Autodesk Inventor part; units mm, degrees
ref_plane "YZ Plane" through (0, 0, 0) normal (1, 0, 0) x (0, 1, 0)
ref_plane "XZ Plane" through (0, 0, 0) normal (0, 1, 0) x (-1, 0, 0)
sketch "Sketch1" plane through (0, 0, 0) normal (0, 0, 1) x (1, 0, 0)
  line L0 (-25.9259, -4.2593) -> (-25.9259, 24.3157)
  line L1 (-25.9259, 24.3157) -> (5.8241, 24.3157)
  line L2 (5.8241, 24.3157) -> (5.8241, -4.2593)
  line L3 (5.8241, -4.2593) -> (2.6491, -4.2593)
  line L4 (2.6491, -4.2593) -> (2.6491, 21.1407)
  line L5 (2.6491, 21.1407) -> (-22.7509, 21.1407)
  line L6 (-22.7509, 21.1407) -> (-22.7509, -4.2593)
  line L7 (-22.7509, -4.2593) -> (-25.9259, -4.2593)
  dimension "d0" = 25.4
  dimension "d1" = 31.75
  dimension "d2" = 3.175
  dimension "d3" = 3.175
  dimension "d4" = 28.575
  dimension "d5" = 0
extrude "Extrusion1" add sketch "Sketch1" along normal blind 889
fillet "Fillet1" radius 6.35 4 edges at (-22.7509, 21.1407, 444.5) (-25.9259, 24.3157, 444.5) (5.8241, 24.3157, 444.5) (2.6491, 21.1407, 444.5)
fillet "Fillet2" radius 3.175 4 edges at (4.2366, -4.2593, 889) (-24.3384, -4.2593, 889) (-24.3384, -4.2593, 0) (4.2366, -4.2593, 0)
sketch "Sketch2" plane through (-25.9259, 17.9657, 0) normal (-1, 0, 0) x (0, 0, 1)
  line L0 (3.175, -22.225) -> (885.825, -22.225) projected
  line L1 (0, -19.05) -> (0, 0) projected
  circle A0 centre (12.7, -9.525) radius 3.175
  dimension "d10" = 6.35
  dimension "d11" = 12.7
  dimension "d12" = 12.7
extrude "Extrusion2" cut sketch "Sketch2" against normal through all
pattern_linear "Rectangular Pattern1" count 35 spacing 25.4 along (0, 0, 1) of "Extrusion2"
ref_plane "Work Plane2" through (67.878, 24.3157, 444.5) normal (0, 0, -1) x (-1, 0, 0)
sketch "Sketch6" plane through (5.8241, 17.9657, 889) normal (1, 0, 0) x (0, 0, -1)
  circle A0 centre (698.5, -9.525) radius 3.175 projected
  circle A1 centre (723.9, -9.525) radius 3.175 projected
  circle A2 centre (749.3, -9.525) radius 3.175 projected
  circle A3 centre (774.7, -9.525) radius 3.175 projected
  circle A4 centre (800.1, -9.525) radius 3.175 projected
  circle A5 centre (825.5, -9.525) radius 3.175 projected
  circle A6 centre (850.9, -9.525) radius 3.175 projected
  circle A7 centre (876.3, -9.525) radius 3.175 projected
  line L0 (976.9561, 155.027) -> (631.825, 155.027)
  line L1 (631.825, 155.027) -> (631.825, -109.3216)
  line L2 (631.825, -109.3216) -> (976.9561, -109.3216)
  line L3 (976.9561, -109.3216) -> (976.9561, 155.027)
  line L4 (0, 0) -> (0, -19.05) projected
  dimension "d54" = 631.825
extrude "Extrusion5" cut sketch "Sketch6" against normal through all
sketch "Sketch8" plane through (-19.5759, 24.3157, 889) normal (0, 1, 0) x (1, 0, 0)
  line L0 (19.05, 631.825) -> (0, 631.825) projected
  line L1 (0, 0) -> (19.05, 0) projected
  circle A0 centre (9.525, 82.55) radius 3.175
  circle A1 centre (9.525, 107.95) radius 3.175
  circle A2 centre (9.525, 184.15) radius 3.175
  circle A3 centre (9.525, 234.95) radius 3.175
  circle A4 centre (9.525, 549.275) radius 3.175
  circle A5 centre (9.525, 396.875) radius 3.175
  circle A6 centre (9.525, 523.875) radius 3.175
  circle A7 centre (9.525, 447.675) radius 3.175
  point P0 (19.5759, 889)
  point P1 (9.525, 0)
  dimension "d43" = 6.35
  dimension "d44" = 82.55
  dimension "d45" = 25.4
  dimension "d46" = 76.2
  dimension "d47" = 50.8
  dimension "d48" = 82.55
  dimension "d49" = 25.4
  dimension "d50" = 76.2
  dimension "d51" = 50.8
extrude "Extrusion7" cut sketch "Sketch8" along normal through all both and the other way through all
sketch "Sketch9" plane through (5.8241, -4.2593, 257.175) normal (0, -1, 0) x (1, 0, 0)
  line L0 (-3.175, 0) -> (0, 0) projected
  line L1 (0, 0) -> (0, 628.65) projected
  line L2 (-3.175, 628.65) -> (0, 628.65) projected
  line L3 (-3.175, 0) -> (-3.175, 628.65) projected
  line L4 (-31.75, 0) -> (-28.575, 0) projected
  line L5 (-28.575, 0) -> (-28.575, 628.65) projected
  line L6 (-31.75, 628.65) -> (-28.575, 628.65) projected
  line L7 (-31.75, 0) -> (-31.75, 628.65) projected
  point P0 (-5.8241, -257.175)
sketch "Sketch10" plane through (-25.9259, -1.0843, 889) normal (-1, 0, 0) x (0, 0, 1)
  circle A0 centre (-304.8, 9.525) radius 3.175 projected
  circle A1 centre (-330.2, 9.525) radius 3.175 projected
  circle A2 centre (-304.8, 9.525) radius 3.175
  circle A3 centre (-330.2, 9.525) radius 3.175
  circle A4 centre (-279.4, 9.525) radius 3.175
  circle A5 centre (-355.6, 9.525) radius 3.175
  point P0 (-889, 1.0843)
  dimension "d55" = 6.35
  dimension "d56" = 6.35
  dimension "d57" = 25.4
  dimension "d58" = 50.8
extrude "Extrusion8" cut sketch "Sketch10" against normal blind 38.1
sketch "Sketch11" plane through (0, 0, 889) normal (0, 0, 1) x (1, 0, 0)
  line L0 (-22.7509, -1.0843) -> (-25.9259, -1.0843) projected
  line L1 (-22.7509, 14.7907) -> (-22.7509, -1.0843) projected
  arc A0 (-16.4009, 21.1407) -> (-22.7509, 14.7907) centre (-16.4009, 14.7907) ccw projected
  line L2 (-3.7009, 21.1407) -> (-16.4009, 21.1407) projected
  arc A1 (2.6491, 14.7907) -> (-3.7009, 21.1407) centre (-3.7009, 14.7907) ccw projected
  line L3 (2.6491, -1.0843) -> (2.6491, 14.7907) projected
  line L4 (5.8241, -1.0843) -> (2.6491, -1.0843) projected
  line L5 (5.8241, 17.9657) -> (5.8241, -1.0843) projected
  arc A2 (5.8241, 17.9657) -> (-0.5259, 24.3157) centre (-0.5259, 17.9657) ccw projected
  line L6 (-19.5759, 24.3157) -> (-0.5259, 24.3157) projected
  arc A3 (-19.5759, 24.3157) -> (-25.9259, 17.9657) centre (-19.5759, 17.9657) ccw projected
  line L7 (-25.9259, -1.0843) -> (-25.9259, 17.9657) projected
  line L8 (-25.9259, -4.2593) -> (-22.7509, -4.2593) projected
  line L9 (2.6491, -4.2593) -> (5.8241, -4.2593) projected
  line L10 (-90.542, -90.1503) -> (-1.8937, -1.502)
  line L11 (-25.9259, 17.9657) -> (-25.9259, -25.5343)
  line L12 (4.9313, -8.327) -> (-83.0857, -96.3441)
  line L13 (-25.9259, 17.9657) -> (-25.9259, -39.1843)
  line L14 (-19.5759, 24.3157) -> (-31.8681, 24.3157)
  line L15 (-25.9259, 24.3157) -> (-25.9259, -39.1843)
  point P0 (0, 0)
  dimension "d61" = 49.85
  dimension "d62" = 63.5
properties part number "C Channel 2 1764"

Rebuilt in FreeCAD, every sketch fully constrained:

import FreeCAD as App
import Part
import Sketcher

V = App.Vector
Q = App.Units.Quantity


def edges_at(feature, points):
    """Names of the edges that pass closest to the given points."""
    edges = feature.Shape.Edges
    near = lambda p: min(range(len(edges)), key=lambda i: edges[i].distToShape(Part.Vertex(*p))[0])
    return sorted({f"Edge{near(p) + 1}" for p in points})


def add_polygon(sketch, points):
    """Adds a closed chain of lines whose ends are joined by coincident constraints."""
    first, n = sketch.GeometryCount, len(points)
    for a, b in zip(points, points[1:] + points[:1]):
        sketch.addGeometry(Part.LineSegment(App.Vector(*a, 0), App.Vector(*b, 0)), False)
    for i in range(n):
        sketch.addConstraint(Sketcher.Constraint("Coincident", first + i, 2, first + (i + 1) % n, 1))

doc = App.newDocument("Part")
body = doc.addObject("PartDesign::Body", "Body")

sketch1 = doc.addObject("Sketcher::SketchObject", "Sketch")
body.addObject(sketch1)
sketch1.AttachmentSupport = (doc.XY_Plane, [""])
sketch1.MapMode = "FlatFace"
add_polygon(sketch1, [(-25.9259, 24.3157), (-25.9259, -4.2593), (-22.7509, -4.2593), (-22.7509, 21.1407), (2.6491, 21.1407), (2.6491, -4.2593), (5.8241, -4.2593), (5.8241, 24.3157)])
sketch1.addConstraint([
    Sketcher.Constraint("Vertical", 0),
    Sketcher.Constraint("Horizontal", 1),
    Sketcher.Constraint("Vertical", 2),
    Sketcher.Constraint("Horizontal", 3),
    Sketcher.Constraint("Vertical", 4),
    Sketcher.Constraint("Horizontal", 5),
    Sketcher.Constraint("Vertical", 6),
    Sketcher.Constraint("Horizontal", 7),
    Sketcher.Constraint("Horizontal", 1, 2, 4, 2),
    Sketcher.Constraint("Equal", 1, 5),
    Sketcher.Constraint("Equal", 3, 2),
    Sketcher.Constraint("DistanceX", 3, 1, 3, 2, Q("1 in")),
    Sketcher.Constraint("DistanceX", 7, 2, 7, 1, Q("1.25 in")),
    Sketcher.Constraint("DistanceY", 0, 2, 0, 1, Q("1.125 in")),
    Sketcher.Constraint("DistanceX", 0, 2, -1, 1, Q("1.0207 in")),
    Sketcher.Constraint("DistanceY", 0, 2, -1, 1, Q("0.1677 in")),
])
pad1 = doc.addObject("PartDesign::Pad", "Pad")
body.addObject(pad1)
pad1.Profile = sketch1
pad1.Length = Q("35 in")
doc.recompute()

fillet = doc.addObject("PartDesign::Fillet", "Fillet")
body.addObject(fillet)
fillet.Base = (pad1, edges_at(pad1, [
    (-22.751, 21.141, 444.5),
    (-25.926, 24.316, 444.5),
    (5.824, 24.316, 444.5),
    (2.649, 21.141, 444.5),
]))
fillet.Radius = Q("0.25 in")
doc.recompute()

fillet2 = doc.addObject("PartDesign::Fillet", "Fillet001")
body.addObject(fillet2)
fillet2.Base = (fillet, edges_at(fillet, [
    (4.237, -4.259, 889),
    (-24.338, -4.259, 889),
    (-24.338, -4.259, 0),
    (4.237, -4.259, 0),
]))
fillet2.Radius = Q("0.125 in")

sketch2 = doc.addObject("Sketcher::SketchObject", "Sketch001")
body.addObject(sketch2)
sketch2.AttachmentSupport = (doc.YZ_Plane, [""])
sketch2.MapMode = "FlatFace"
sketch2.AttachmentOffset = App.Placement(V(0, 0, -1.0207047 * 25.4), App.Rotation())
sketch2.addGeometry(Part.Circle(V(8.4407, 12.7, 0), V(0, 0, 1), 3.175), False)
sketch2.addConstraint([
    Sketcher.Constraint("Diameter", 0, Q("0.25 in")),
    Sketcher.Constraint("DistanceY", -1, 1, 0, 3, Q("0.5 in")),
    Sketcher.Constraint("DistanceX", -1, 1, 0, 3, Q("0.3323 in")),
])
pocket1 = doc.addObject("PartDesign::Pocket", "Pocket")
body.addObject(pocket1)
pocket1.Profile = sketch2
pocket1.Type = "ThroughAll"
pocket1.Reversed = True
doc.recompute()

linearpattern = doc.addObject("PartDesign::LinearPattern", "LinearPattern")
body.addObject(linearpattern)
linearpattern.Originals = [pocket1]
linearpattern.Direction = (doc.Z_Axis, [""])
linearpattern.Mode = "offset"
linearpattern.Offset = Q("1 in")
linearpattern.Occurrences = 35
body.Tip = linearpattern

sketch3 = doc.addObject("Sketcher::SketchObject", "Sketch002")
body.addObject(sketch3)
sketch3.AttachmentSupport = (doc.YZ_Plane, [""])
sketch3.MapMode = "FlatFace"
sketch3.AttachmentOffset = App.Placement(V(0, 0, 0.2292953 * 25.4), App.Rotation())
add_polygon(sketch3, [(-91.3559, -87.9561), (172.9927, -87.9561), (172.9927, 257.175), (-91.3559, 257.175)])
sketch3.addGeometry(Part.Circle(V(8.4407, 190.5, 0), V(0, 0, 1), 3.175), False)
sketch3.addGeometry(Part.Circle(V(8.4407, 165.1, 0), V(0, 0, 1), 3.175), False)
sketch3.addGeometry(Part.Circle(V(8.4407, 139.7, 0), V(0, 0, 1), 3.175), False)
sketch3.addGeometry(Part.Circle(V(8.4407, 114.3, 0), V(0, 0, 1), 3.175), False)
sketch3.addGeometry(Part.Circle(V(8.4407, 88.9, 0), V(0, 0, 1), 3.175), False)
sketch3.addGeometry(Part.Circle(V(8.4407, 63.5, 0), V(0, 0, 1), 3.175), False)
sketch3.addGeometry(Part.Circle(V(8.4407, 38.1, 0), V(0, 0, 1), 3.175), False)
sketch3.addGeometry(Part.Circle(V(8.4407, 12.7, 0), V(0, 0, 1), 3.175), False)
sketch3.addConstraint([
    Sketcher.Constraint("Horizontal", 0),
    Sketcher.Constraint("Vertical", 1),
    Sketcher.Constraint("Horizontal", 2),
    Sketcher.Constraint("Vertical", 3),
    Sketcher.Constraint("Equal", 4, 5),
    Sketcher.Constraint("Equal", 5, 6),
    Sketcher.Constraint("Equal", 6, 7),
    Sketcher.Constraint("Equal", 7, 8),
    Sketcher.Constraint("Equal", 8, 9),
    Sketcher.Constraint("Equal", 9, 10),
    Sketcher.Constraint("Equal", 10, 11),
    Sketcher.Constraint("Vertical", 4, 3, 5, 3),
    Sketcher.Constraint("Vertical", 5, 3, 6, 3),
    Sketcher.Constraint("Vertical", 6, 3, 7, 3),
    Sketcher.Constraint("Vertical", 7, 3, 8, 3),
    Sketcher.Constraint("Vertical", 8, 3, 9, 3),
    Sketcher.Constraint("Vertical", 9, 3, 10, 3),
    Sketcher.Constraint("Vertical", 10, 3, 11, 3),
    Sketcher.Constraint("Diameter", 4, Q("0.25 in")),
    Sketcher.Constraint("DistanceY", 5, 3, 4, 3, Q("1 in")),
    Sketcher.Constraint("DistanceY", 6, 3, 5, 3, Q("1 in")),
    Sketcher.Constraint("DistanceY", 7, 3, 6, 3, Q("1 in")),
    Sketcher.Constraint("DistanceY", 8, 3, 7, 3, Q("1 in")),
    Sketcher.Constraint("DistanceY", 9, 3, 8, 3, Q("1 in")),
    Sketcher.Constraint("DistanceY", 10, 3, 9, 3, Q("1 in")),
    Sketcher.Constraint("DistanceY", 11, 3, 10, 3, Q("1 in")),
    Sketcher.Constraint("DistanceY", -1, 1, 4, 3, Q("7.5 in")),
    Sketcher.Constraint("DistanceY", -1, 1, 1, 2, Q("10.125 in")),
    Sketcher.Constraint("DistanceX", 2, 2, 4, 3, Q("3.929 in")),
    Sketcher.Constraint("DistanceX", 0, 1, 0, 2, Q("264.3486 mm")),
    Sketcher.Constraint("DistanceY", 1, 1, 1, 2, Q("345.131 mm")),
    Sketcher.Constraint("DistanceX", -1, 1, 4, 3, Q("0.3323 in")),
])
pocket2 = doc.addObject("PartDesign::Pocket", "Pocket001")
body.addObject(pocket2)
pocket2.Profile = sketch3
pocket2.Type = "ThroughAll"

sketch4 = doc.addObject("Sketcher::SketchObject", "Sketch003")
body.addObject(sketch4)
sketch4.AttachmentSupport = (doc.XZ_Plane, [""])
sketch4.MapMode = "FlatFace"
sketch4.AttachmentOffset = App.Placement(V(0, 0, -0.957311 * 25.4), App.Rotation())
sketch4.addGeometry([
    Part.Circle(V(-10.0509, 806.45, 0), V(0, 0, 1), 3.175),
    Part.Circle(V(-10.0509, 781.05, 0), V(0, 0, 1), 3.175),
    Part.Circle(V(-10.0509, 704.85, 0), V(0, 0, 1), 3.175),
    Part.Circle(V(-10.0509, 654.05, 0), V(0, 0, 1), 3.175),
    Part.Circle(V(-10.0509, 339.725, 0), V(0, 0, 1), 3.175),
    Part.Circle(V(-10.0509, 492.125, 0), V(0, 0, 1), 3.175),
    Part.Circle(V(-10.0509, 365.125, 0), V(0, 0, 1), 3.175),
    Part.Circle(V(-10.0509, 441.325, 0), V(0, 0, 1), 3.175),
], False)
sketch4.addConstraint([
    Sketcher.Constraint("Equal", 0, 1),
    Sketcher.Constraint("Equal", 1, 2),
    Sketcher.Constraint("Equal", 2, 3),
    Sketcher.Constraint("Equal", 3, 4),
    Sketcher.Constraint("Equal", 4, 5),
    Sketcher.Constraint("Equal", 5, 6),
    Sketcher.Constraint("Equal", 6, 7),
    Sketcher.Constraint("Vertical", 0, 3, 1, 3),
    Sketcher.Constraint("Vertical", 1, 3, 2, 3),
    Sketcher.Constraint("Vertical", 2, 3, 3, 3),
    Sketcher.Constraint("Vertical", 3, 3, 4, 3),
    Sketcher.Constraint("Vertical", 4, 3, 5, 3),
    Sketcher.Constraint("Vertical", 5, 3, 6, 3),
    Sketcher.Constraint("Vertical", 6, 3, 7, 3),
    Sketcher.Constraint("Diameter", 0, Q("0.25 in")),
    Sketcher.Constraint("DistanceY", 1, 3, 0, 3, Q("1 in")),
    Sketcher.Constraint("DistanceY", 2, 3, 1, 3, Q("3 in")),
    Sketcher.Constraint("DistanceY", 3, 3, 2, 3, Q("2 in")),
    Sketcher.Constraint("DistanceY", 4, 3, 6, 3, Q("1 in")),
    Sketcher.Constraint("DistanceY", 7, 3, 5, 3, Q("2 in")),
    Sketcher.Constraint("DistanceY", 6, 3, 7, 3, Q("3 in")),
    Sketcher.Constraint("DistanceY", -1, 1, 0, 3, Q("31.75 in")),
    Sketcher.Constraint("DistanceY", -1, 1, 4, 3, Q("13.375 in")),
    Sketcher.Constraint("DistanceX", 0, 3, -1, 1, Q("0.3957 in")),
])
pocket3 = doc.addObject("PartDesign::Pocket", "Pocket002")
body.addObject(pocket3)
pocket3.Profile = sketch4
pocket3.Type = "ThroughAll"
pocket3.Midplane = True

sketch5 = doc.addObject("Sketcher::SketchObject", "Sketch004")
body.addObject(sketch5)
sketch5.AttachmentSupport = (doc.YZ_Plane, [""])
sketch5.MapMode = "FlatFace"
sketch5.AttachmentOffset = App.Placement(V(0, 0, -1.0207047 * 25.4), App.Rotation())
sketch5.addGeometry([
    Part.Circle(V(8.4407, 584.2, 0), V(0, 0, 1), 3.175),
    Part.Circle(V(8.4407, 558.8, 0), V(0, 0, 1), 3.175),
    Part.Circle(V(8.4407, 609.6, 0), V(0, 0, 1), 3.175),
    Part.Circle(V(8.4407, 533.4, 0), V(0, 0, 1), 3.175),
], False)
sketch5.addConstraint([
    Sketcher.Constraint("Equal", 0, 1),
    Sketcher.Constraint("Equal", 1, 2),
    Sketcher.Constraint("Equal", 2, 3),
    Sketcher.Constraint("Vertical", 0, 3, 1, 3),
    Sketcher.Constraint("Vertical", 1, 3, 2, 3),
    Sketcher.Constraint("Vertical", 2, 3, 3, 3),
    Sketcher.Constraint("Diameter", 0, Q("0.25 in")),
    Sketcher.Constraint("DistanceY", 1, 3, 0, 3, Q("1 in")),
    Sketcher.Constraint("DistanceY", 0, 3, 2, 3, Q("1 in")),
    Sketcher.Constraint("DistanceY", 3, 3, 1, 3, Q("1 in")),
    Sketcher.Constraint("DistanceY", -1, 1, 0, 3, Q("23 in")),
    Sketcher.Constraint("DistanceX", -1, 1, 0, 3, Q("0.3323 in")),
])
pocket4 = doc.addObject("PartDesign::Pocket", "Pocket003")
body.addObject(pocket4)
pocket4.Profile = sketch5
pocket4.Length = Q("1.5 in")
pocket4.Reversed = True

doc.recompute()
